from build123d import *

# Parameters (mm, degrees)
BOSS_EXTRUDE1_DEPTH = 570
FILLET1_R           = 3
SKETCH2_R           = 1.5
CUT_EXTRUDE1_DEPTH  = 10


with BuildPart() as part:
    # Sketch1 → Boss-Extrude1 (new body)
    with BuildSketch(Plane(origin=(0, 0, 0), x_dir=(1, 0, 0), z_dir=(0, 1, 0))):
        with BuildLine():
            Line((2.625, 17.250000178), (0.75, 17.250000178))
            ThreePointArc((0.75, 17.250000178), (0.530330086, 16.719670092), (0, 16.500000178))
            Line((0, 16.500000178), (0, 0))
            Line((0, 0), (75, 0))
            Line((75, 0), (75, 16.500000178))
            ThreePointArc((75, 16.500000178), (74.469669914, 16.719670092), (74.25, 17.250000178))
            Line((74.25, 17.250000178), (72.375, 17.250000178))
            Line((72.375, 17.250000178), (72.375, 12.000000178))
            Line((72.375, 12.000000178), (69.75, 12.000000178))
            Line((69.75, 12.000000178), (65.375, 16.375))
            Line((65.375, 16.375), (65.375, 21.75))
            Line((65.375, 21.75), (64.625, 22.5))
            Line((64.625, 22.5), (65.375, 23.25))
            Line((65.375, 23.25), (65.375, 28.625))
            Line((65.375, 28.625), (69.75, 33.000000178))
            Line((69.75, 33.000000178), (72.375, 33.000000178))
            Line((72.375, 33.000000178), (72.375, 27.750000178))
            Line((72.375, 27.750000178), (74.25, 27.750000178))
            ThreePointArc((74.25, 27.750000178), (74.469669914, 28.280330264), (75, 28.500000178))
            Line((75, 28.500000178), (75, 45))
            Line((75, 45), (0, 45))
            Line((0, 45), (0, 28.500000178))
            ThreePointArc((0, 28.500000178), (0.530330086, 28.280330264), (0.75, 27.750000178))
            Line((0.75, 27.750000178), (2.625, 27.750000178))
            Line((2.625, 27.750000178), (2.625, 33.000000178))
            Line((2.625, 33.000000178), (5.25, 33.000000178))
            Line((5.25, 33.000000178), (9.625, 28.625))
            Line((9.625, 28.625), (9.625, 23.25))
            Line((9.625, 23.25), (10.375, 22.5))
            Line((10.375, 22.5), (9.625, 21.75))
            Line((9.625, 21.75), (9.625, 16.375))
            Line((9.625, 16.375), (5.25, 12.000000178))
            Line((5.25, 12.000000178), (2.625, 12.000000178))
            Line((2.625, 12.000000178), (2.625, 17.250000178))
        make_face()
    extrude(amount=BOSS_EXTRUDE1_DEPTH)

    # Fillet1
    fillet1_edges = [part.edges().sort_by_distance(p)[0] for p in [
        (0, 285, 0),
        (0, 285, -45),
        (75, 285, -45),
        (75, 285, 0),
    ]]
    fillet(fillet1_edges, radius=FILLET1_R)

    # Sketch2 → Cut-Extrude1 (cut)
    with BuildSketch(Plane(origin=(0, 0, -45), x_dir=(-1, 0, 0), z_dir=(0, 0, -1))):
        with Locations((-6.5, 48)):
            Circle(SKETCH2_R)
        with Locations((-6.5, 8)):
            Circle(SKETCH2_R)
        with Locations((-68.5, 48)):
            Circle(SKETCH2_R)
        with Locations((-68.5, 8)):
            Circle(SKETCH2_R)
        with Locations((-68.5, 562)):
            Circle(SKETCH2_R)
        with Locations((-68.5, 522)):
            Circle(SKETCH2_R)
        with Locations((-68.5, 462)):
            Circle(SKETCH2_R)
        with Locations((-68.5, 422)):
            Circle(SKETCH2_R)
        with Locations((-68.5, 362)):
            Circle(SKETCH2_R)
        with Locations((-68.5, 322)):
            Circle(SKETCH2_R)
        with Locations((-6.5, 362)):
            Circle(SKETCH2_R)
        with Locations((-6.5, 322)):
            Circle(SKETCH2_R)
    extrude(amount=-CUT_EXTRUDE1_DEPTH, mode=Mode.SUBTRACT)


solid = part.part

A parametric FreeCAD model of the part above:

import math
import FreeCAD as App
import Part
import Sketcher
Q = App.Units.Quantity


def edges_at(feature, points):
    """Names of the edges that pass closest to the given points."""
    edges = feature.Shape.Edges
    near = lambda p: min(range(len(edges)), key=lambda i: edges[i].distToShape(Part.Vertex(*p))[0])
    return sorted({f"Edge{near(p) + 1}" for p in points})

doc = App.newDocument("Part")
body = doc.addObject("PartDesign::Body", "Body")

sketch1 = body.newObject("Sketcher::SketchObject", "Sketch")
sketch1.AttachmentSupport = (doc.getObject("XZ_Plane"), [""])
sketch1.MapMode = "FlatFace"
sketch1.addGeometry(Part.LineSegment(App.Vector(2.6, -17.3, 0), App.Vector(0.8, -17.3, 0)), False)
sketch1.addGeometry(Part.ArcOfCircle(Part.Circle(App.Vector(0, -17.3, 0), App.Vector(0, 0, 1), 0.8), math.radians(0), math.radians(90)), False)
sketch1.addGeometry(Part.LineSegment(App.Vector(0, -16.5, 0), App.Vector(0, 0, 0)), False)
sketch1.addGeometry(Part.LineSegment(App.Vector(0, 0, 0), App.Vector(75, 0, 0)), False)
sketch1.addGeometry(Part.LineSegment(App.Vector(75, 0, 0), App.Vector(75, -16.5, 0)), False)
sketch1.addGeometry(Part.ArcOfCircle(Part.Circle(App.Vector(75, -17.3, 0), App.Vector(0, 0, 1), 0.8), math.radians(90), math.radians(180)), False)
sketch1.addGeometry(Part.LineSegment(App.Vector(74.2, -17.3, 0), App.Vector(72.4, -17.3, 0)), False)
sketch1.addGeometry(Part.LineSegment(App.Vector(72.4, -17.3, 0), App.Vector(72.4, -12, 0)), False)
sketch1.addGeometry(Part.LineSegment(App.Vector(72.4, -12, 0), App.Vector(69.8, -12, 0)), False)
sketch1.addGeometry(Part.LineSegment(App.Vector(69.8, -12, 0), App.Vector(65.4, -16.4, 0)), False)
sketch1.addGeometry(Part.LineSegment(App.Vector(65.4, -16.4, 0), App.Vector(65.4, -21.8, 0)), False)
sketch1.addGeometry(Part.LineSegment(App.Vector(65.4, -21.8, 0), App.Vector(64.6, -22.5, 0)), False)
sketch1.addGeometry(Part.LineSegment(App.Vector(64.6, -22.5, 0), App.Vector(65.4, -23.2, 0)), False)
sketch1.addGeometry(Part.LineSegment(App.Vector(65.4, -23.2, 0), App.Vector(65.4, -28.6, 0)), False)
sketch1.addGeometry(Part.LineSegment(App.Vector(65.4, -28.6, 0), App.Vector(69.8, -33, 0)), False)
sketch1.addGeometry(Part.LineSegment(App.Vector(69.8, -33, 0), App.Vector(72.4, -33, 0)), False)
sketch1.addGeometry(Part.LineSegment(App.Vector(72.4, -33, 0), App.Vector(72.4, -27.8, 0)), False)
sketch1.addGeometry(Part.LineSegment(App.Vector(72.4, -27.8, 0), App.Vector(74.2, -27.8, 0)), False)
sketch1.addGeometry(Part.ArcOfCircle(Part.Circle(App.Vector(75, -27.8, 0), App.Vector(0, 0, 1), 0.8), math.radians(180), math.radians(270)), False)
sketch1.addGeometry(Part.LineSegment(App.Vector(75, -28.5, 0), App.Vector(75, -45, 0)), False)
sketch1.addGeometry(Part.LineSegment(App.Vector(75, -45, 0), App.Vector(0, -45, 0)), False)
sketch1.addGeometry(Part.LineSegment(App.Vector(0, -45, 0), App.Vector(0, -28.5, 0)), False)
sketch1.addGeometry(Part.ArcOfCircle(Part.Circle(App.Vector(0, -27.8, 0), App.Vector(0, 0, 1), 0.8), math.radians(-90), math.radians(0)), False)
sketch1.addGeometry(Part.LineSegment(App.Vector(0.8, -27.8, 0), App.Vector(2.6, -27.8, 0)), False)
sketch1.addGeometry(Part.LineSegment(App.Vector(2.6, -27.8, 0), App.Vector(2.6, -33, 0)), False)
sketch1.addGeometry(Part.LineSegment(App.Vector(2.6, -33, 0), App.Vector(5.2, -33, 0)), False)
sketch1.addGeometry(Part.LineSegment(App.Vector(5.2, -33, 0), App.Vector(9.6, -28.6, 0)), False)
sketch1.addGeometry(Part.LineSegment(App.Vector(9.6, -28.6, 0), App.Vector(9.6, -23.2, 0)), False)
sketch1.addGeometry(Part.LineSegment(App.Vector(9.6, -23.2, 0), App.Vector(10.4, -22.5, 0)), False)
sketch1.addGeometry(Part.LineSegment(App.Vector(10.4, -22.5, 0), App.Vector(9.6, -21.8, 0)), False)
sketch1.addGeometry(Part.LineSegment(App.Vector(9.6, -21.8, 0), App.Vector(9.6, -16.4, 0)), False)
sketch1.addGeometry(Part.LineSegment(App.Vector(9.6, -16.4, 0), App.Vector(5.2, -12, 0)), False)
sketch1.addGeometry(Part.LineSegment(App.Vector(5.2, -12, 0), App.Vector(2.6, -12, 0)), False)
sketch1.addGeometry(Part.LineSegment(App.Vector(2.6, -12, 0), App.Vector(2.6, -17.3, 0)), False)
sketch1.addConstraint(Sketcher.Constraint("Coincident", 0, 2, 1, 1))
sketch1.addConstraint(Sketcher.Constraint("Coincident", 1, 2, 2, 1))
sketch1.addConstraint(Sketcher.Constraint("Coincident", 2, 2, 3, 1))
sketch1.addConstraint(Sketcher.Constraint("Coincident", 3, 2, 4, 1))
sketch1.addConstraint(Sketcher.Constraint("Coincident", 4, 2, 5, 1))
sketch1.addConstraint(Sketcher.Constraint("Coincident", 5, 2, 6, 1))
sketch1.addConstraint(Sketcher.Constraint("Coincident", 6, 2, 7, 1))
sketch1.addConstraint(Sketcher.Constraint("Coincident", 7, 2, 8, 1))
sketch1.addConstraint(Sketcher.Constraint("Coincident", 8, 2, 9, 1))
sketch1.addConstraint(Sketcher.Constraint("Coincident", 9, 2, 10, 1))
sketch1.addConstraint(Sketcher.Constraint("Coincident", 10, 2, 11, 1))
sketch1.addConstraint(Sketcher.Constraint("Coincident", 11, 2, 12, 1))
sketch1.addConstraint(Sketcher.Constraint("Coincident", 12, 2, 13, 1))
sketch1.addConstraint(Sketcher.Constraint("Coincident", 13, 2, 14, 1))
sketch1.addConstraint(Sketcher.Constraint("Coincident", 14, 2, 15, 1))
sketch1.addConstraint(Sketcher.Constraint("Coincident", 15, 2, 16, 1))
sketch1.addConstraint(Sketcher.Constraint("Coincident", 16, 2, 17, 1))
sketch1.addConstraint(Sketcher.Constraint("Coincident", 17, 2, 18, 1))
sketch1.addConstraint(Sketcher.Constraint("Coincident", 18, 2, 19, 1))
sketch1.addConstraint(Sketcher.Constraint("Coincident", 19, 2, 20, 1))
sketch1.addConstraint(Sketcher.Constraint("Coincident", 20, 2, 21, 1))
sketch1.addConstraint(Sketcher.Constraint("Coincident", 21, 2, 22, 1))
sketch1.addConstraint(Sketcher.Constraint("Coincident", 22, 2, 23, 1))
sketch1.addConstraint(Sketcher.Constraint("Coincident", 23, 2, 24, 1))
sketch1.addConstraint(Sketcher.Constraint("Coincident", 24, 2, 25, 1))
sketch1.addConstraint(Sketcher.Constraint("Coincident", 25, 2, 26, 1))
sketch1.addConstraint(Sketcher.Constraint("Coincident", 26, 2, 27, 1))
sketch1.addConstraint(Sketcher.Constraint("Coincident", 27, 2, 28, 1))
sketch1.addConstraint(Sketcher.Constraint("Coincident", 28, 2, 29, 1))
sketch1.addConstraint(Sketcher.Constraint("Coincident", 29, 2, 30, 1))
sketch1.addConstraint(Sketcher.Constraint("Coincident", 30, 2, 31, 1))
sketch1.addConstraint(Sketcher.Constraint("Coincident", 31, 2, 32, 1))
sketch1.addConstraint(Sketcher.Constraint("Coincident", 32, 2, 33, 1))
sketch1.addConstraint(Sketcher.Constraint("Coincident", 33, 2, 0, 1))
sketch1.addConstraint(Sketcher.Constraint("Horizontal", 0))
sketch1.addConstraint(Sketcher.Constraint("Vertical", 2))
sketch1.addConstraint(Sketcher.Constraint("Horizontal", 3))
sketch1.addConstraint(Sketcher.Constraint("Vertical", 4))
sketch1.addConstraint(Sketcher.Constraint("Horizontal", 6))
sketch1.addConstraint(Sketcher.Constraint("Vertical", 7))
sketch1.addConstraint(Sketcher.Constraint("Horizontal", 8))
sketch1.addConstraint(Sketcher.Constraint("Vertical", 10))
sketch1.addConstraint(Sketcher.Constraint("Vertical", 13))
sketch1.addConstraint(Sketcher.Constraint("Horizontal", 15))
sketch1.addConstraint(Sketcher.Constraint("Vertical", 16))
sketch1.addConstraint(Sketcher.Constraint("Horizontal", 17))
sketch1.addConstraint(Sketcher.Constraint("Vertical", 19))
sketch1.addConstraint(Sketcher.Constraint("Horizontal", 20))
sketch1.addConstraint(Sketcher.Constraint("Vertical", 21))
sketch1.addConstraint(Sketcher.Constraint("Horizontal", 23))
sketch1.addConstraint(Sketcher.Constraint("Vertical", 24))
sketch1.addConstraint(Sketcher.Constraint("Horizontal", 25))
sketch1.addConstraint(Sketcher.Constraint("Vertical", 27))
sketch1.addConstraint(Sketcher.Constraint("Vertical", 30))
sketch1.addConstraint(Sketcher.Constraint("Horizontal", 32))
sketch1.addConstraint(Sketcher.Constraint("Vertical", 33))
sketch1.addConstraint(Sketcher.Constraint("Coincident", 2, 2, -1, 1))
sketch1.addConstraint(Sketcher.Constraint("Equal", 1, 5))
sketch1.addConstraint(Sketcher.Constraint("Equal", 5, 18))
sketch1.addConstraint(Sketcher.Constraint("Equal", 18, 22))
sketch1.addConstraint(Sketcher.Constraint("PointOnObject", 1, 3, -2))
sketch1.addConstraint(Sketcher.Constraint("PointOnObject", 22, 3, -2))
sketch1.addConstraint(Sketcher.Constraint("PointOnObject", 20, 2, -2))
sketch1.addConstraint(Sketcher.Constraint("Parallel", 9, 11))
sketch1.addConstraint(Sketcher.Constraint("Perpendicular", 11, 12))
sketch1.addConstraint(Sketcher.Constraint("Parallel", 12, 14))
sketch1.addConstraint(Sketcher.Constraint("Perpendicular", 14, 26))
sketch1.addConstraint(Sketcher.Constraint("Parallel", 26, 28))
sketch1.addConstraint(Sketcher.Constraint("Perpendicular", 28, 29))
sketch1.addConstraint(Sketcher.Constraint("Parallel", 29, 31))
sketch1.addConstraint(Sketcher.Constraint("Horizontal", 1, 3, 5, 3))
sketch1.addConstraint(Sketcher.Constraint("Horizontal", 18, 3, 22, 3))
sketch1.addConstraint(Sketcher.Constraint("Horizontal", 5, 3, 0, 2))
sketch1.addConstraint(Sketcher.Constraint("Horizontal", 0, 2, 5, 2))
sketch1.addConstraint(Sketcher.Constraint("Horizontal", 22, 3, 16, 2))
sketch1.addConstraint(Sketcher.Constraint("Horizontal", 17, 2, 22, 2))
sketch1.addConstraint(Sketcher.Constraint("Horizontal", 15, 2, 24, 2))
sketch1.addConstraint(Sketcher.Constraint("Horizontal", 13, 2, 26, 2))
sketch1.addConstraint(Sketcher.Constraint("Horizontal", 12, 2, 27, 2))
sketch1.addConstraint(Sketcher.Constraint("Horizontal", 11, 2, 28, 2))
sketch1.addConstraint(Sketcher.Constraint("Horizontal", 10, 2, 29, 2))
sketch1.addConstraint(Sketcher.Constraint("Horizontal", 9, 2, 30, 2))
sketch1.addConstraint(Sketcher.Constraint("Horizontal", 8, 2, 31, 2))
sketch1.addConstraint(Sketcher.Constraint("Vertical", 5, 3, 18, 3))
sketch1.addConstraint(Sketcher.Constraint("Vertical", 18, 3, 3, 2))
sketch1.addConstraint(Sketcher.Constraint("Vertical", 10, 2, 12, 2))
sketch1.addConstraint(Sketcher.Constraint("Vertical", 8, 2, 14, 2))
sketch1.addConstraint(Sketcher.Constraint("Vertical", 7, 2, 15, 2))
sketch1.addConstraint(Sketcher.Constraint("Vertical", 4, 2, 18, 2))
sketch1.addConstraint(Sketcher.Constraint("Vertical", 27, 2, 29, 2))
sketch1.addConstraint(Sketcher.Constraint("Vertical", 24, 2, 32, 2))
sketch1.addConstraint(Sketcher.Constraint("Equal", 0, 6))
sketch1.addConstraint(Sketcher.Constraint("Equal", 15, 25))
sketch1.addConstraint(Sketcher.Constraint("Equal", 10, 13))
sketch1.addConstraint(Sketcher.Constraint("Equal", 7, 16))
sketch1.addConstraint(Sketcher.Constraint("Equal", 4, 19))
sketch1.addConstraint(Sketcher.Constraint("DistanceX", 3, 1, 3, 2, Q("75 mm")))
sketch1.addConstraint(Sketcher.Constraint("Radius", 1, Q("0.75 mm")))
sketch1.addConstraint(Sketcher.Constraint("DistanceY", 2, 1, 2, 2, Q("16.5 mm")))
sketch1.addConstraint(Sketcher.Constraint("DistanceY", 7, 2, -1, 1, Q("12 mm")))
sketch1.addConstraint(Sketcher.Constraint("DistanceY", 14, 2, -1, 1, Q("33 mm")))
sketch1.addConstraint(Sketcher.Constraint("DistanceX", 9, 2, 6, 2, Q("7 mm")))
sketch1.addConstraint(Sketcher.Constraint("DistanceY", 12, 2, 6, 2, Q("6 mm")))
sketch1.addConstraint(Sketcher.Constraint("DistanceX", 8, 2, 5, 2, Q("4.5 mm")))
sketch1.addConstraint(Sketcher.Constraint("DistanceX", 0, 2, 0, 1, Q("1.875 mm")))
pad1 = body.newObject("PartDesign::Pad", "Pad")
pad1.Profile = sketch1
pad1.Length = 570
pad1.Reversed = True
doc.recompute()

fillet = body.newObject("PartDesign::Fillet", "Fillet")
fillet.Base = (pad1, edges_at(pad1, [
    (0, 285, 0),
    (0, 285, -45),
    (75, 285, -45),
    (75, 285, 0),
]))
fillet.Radius = 3

sketch2 = body.newObject("Sketcher::SketchObject", "Sketch001")
sketch2.AttachmentSupport = (doc.getObject("XY_Plane"), [""])
sketch2.MapMode = "FlatFace"
sketch2.AttachmentOffset = App.Placement(App.Vector(0, 0, -45), App.Rotation())
sketch2.addGeometry(Part.Circle(App.Vector(6.5, 48, 0), App.Vector(0, 0, 1), 1.5), False)
sketch2.addGeometry(Part.Circle(App.Vector(6.5, 8, 0), App.Vector(0, 0, 1), 1.5), False)
sketch2.addGeometry(Part.Circle(App.Vector(68.5, 48, 0), App.Vector(0, 0, 1), 1.5), False)
sketch2.addGeometry(Part.Circle(App.Vector(68.5, 8, 0), App.Vector(0, 0, 1), 1.5), False)
sketch2.addGeometry(Part.Circle(App.Vector(68.5, 562, 0), App.Vector(0, 0, 1), 1.5), False)
sketch2.addGeometry(Part.Circle(App.Vector(68.5, 522, 0), App.Vector(0, 0, 1), 1.5), False)
sketch2.addGeometry(Part.Circle(App.Vector(68.5, 462, 0), App.Vector(0, 0, 1), 1.5), False)
sketch2.addGeometry(Part.Circle(App.Vector(68.5, 422, 0), App.Vector(0, 0, 1), 1.5), False)
sketch2.addGeometry(Part.Circle(App.Vector(68.5, 362, 0), App.Vector(0, 0, 1), 1.5), False)
sketch2.addGeometry(Part.Circle(App.Vector(68.5, 322, 0), App.Vector(0, 0, 1), 1.5), False)
sketch2.addGeometry(Part.Circle(App.Vector(6.5, 362, 0), App.Vector(0, 0, 1), 1.5), False)
sketch2.addGeometry(Part.Circle(App.Vector(6.5, 322, 0), App.Vector(0, 0, 1), 1.5), False)
sketch2.addConstraint(Sketcher.Constraint("Equal", 0, 1))
sketch2.addConstraint(Sketcher.Constraint("Equal", 1, 2))
sketch2.addConstraint(Sketcher.Constraint("Equal", 2, 3))
sketch2.addConstraint(Sketcher.Constraint("Equal", 3, 4))
sketch2.addConstraint(Sketcher.Constraint("Equal", 4, 5))
sketch2.addConstraint(Sketcher.Constraint("Equal", 5, 6))
sketch2.addConstraint(Sketcher.Constraint("Equal", 6, 7))
sketch2.addConstraint(Sketcher.Constraint("Equal", 7, 8))
sketch2.addConstraint(Sketcher.Constraint("Equal", 8, 9))
sketch2.addConstraint(Sketcher.Constraint("Equal", 9, 10))
sketch2.addConstraint(Sketcher.Constraint("Equal", 10, 11))
sketch2.addConstraint(Sketcher.Constraint("Horizontal", 0, 3, 2, 3))
sketch2.addConstraint(Sketcher.Constraint("Horizontal", 1, 3, 3, 3))
sketch2.addConstraint(Sketcher.Constraint("Horizontal", 8, 3, 10, 3))
sketch2.addConstraint(Sketcher.Constraint("Horizontal", 9, 3, 11, 3))
sketch2.addConstraint(Sketcher.Constraint("Vertical", 0, 3, 1, 3))
sketch2.addConstraint(Sketcher.Constraint("Vertical", 2, 3, 3, 3))
sketch2.addConstraint(Sketcher.Constraint("Vertical", 3, 3, 4, 3))
sketch2.addConstraint(Sketcher.Constraint("Vertical", 4, 3, 5, 3))
sketch2.addConstraint(Sketcher.Constraint("Vertical", 5, 3, 6, 3))
sketch2.addConstraint(Sketcher.Constraint("Vertical", 6, 3, 7, 3))
sketch2.addConstraint(Sketcher.Constraint("Vertical", 7, 3, 8, 3))
sketch2.addConstraint(Sketcher.Constraint("Vertical", 8, 3, 9, 3))
sketch2.addConstraint(Sketcher.Constraint("Vertical", 1, 3, 10, 3))
sketch2.addConstraint(Sketcher.Constraint("Vertical", 10, 3, 11, 3))
sketch2.addConstraint(Sketcher.Constraint("Diameter", 0, Q("3 mm")))
sketch2.addConstraint(Sketcher.Constraint("DistanceY", -1, 1, 0, 3, Q("48 mm")))
sketch2.addConstraint(Sketcher.Constraint("DistanceY", -1, 1, 1, 3, Q("8 mm")))
sketch2.addConstraint(Sketcher.Constraint("DistanceY", -1, 1, 4, 3, Q("562 mm")))
sketch2.addConstraint(Sketcher.Constraint("DistanceY", -1, 1, 5, 3, Q("522 mm")))
sketch2.addConstraint(Sketcher.Constraint("DistanceY", -1, 1, 6, 3, Q("462 mm")))
sketch2.addConstraint(Sketcher.Constraint("DistanceY", -1, 1, 7, 3, Q("422 mm")))
sketch2.addConstraint(Sketcher.Constraint("DistanceY", -1, 1, 8, 3, Q("362 mm")))
sketch2.addConstraint(Sketcher.Constraint("DistanceY", -1, 1, 9, 3, Q("322 mm")))
sketch2.addConstraint(Sketcher.Constraint("DistanceX", 0, 3, 2, 3, Q("62 mm")))
sketch2.addConstraint(Sketcher.Constraint("DistanceX", -1, 1, 0, 3, Q("6.5 mm")))
pocket1 = body.newObject("PartDesign::Pocket", "Pocket")
pocket1.Profile = sketch2
pocket1.Length = 10
pocket1.Reversed = True

doc.recompute()
